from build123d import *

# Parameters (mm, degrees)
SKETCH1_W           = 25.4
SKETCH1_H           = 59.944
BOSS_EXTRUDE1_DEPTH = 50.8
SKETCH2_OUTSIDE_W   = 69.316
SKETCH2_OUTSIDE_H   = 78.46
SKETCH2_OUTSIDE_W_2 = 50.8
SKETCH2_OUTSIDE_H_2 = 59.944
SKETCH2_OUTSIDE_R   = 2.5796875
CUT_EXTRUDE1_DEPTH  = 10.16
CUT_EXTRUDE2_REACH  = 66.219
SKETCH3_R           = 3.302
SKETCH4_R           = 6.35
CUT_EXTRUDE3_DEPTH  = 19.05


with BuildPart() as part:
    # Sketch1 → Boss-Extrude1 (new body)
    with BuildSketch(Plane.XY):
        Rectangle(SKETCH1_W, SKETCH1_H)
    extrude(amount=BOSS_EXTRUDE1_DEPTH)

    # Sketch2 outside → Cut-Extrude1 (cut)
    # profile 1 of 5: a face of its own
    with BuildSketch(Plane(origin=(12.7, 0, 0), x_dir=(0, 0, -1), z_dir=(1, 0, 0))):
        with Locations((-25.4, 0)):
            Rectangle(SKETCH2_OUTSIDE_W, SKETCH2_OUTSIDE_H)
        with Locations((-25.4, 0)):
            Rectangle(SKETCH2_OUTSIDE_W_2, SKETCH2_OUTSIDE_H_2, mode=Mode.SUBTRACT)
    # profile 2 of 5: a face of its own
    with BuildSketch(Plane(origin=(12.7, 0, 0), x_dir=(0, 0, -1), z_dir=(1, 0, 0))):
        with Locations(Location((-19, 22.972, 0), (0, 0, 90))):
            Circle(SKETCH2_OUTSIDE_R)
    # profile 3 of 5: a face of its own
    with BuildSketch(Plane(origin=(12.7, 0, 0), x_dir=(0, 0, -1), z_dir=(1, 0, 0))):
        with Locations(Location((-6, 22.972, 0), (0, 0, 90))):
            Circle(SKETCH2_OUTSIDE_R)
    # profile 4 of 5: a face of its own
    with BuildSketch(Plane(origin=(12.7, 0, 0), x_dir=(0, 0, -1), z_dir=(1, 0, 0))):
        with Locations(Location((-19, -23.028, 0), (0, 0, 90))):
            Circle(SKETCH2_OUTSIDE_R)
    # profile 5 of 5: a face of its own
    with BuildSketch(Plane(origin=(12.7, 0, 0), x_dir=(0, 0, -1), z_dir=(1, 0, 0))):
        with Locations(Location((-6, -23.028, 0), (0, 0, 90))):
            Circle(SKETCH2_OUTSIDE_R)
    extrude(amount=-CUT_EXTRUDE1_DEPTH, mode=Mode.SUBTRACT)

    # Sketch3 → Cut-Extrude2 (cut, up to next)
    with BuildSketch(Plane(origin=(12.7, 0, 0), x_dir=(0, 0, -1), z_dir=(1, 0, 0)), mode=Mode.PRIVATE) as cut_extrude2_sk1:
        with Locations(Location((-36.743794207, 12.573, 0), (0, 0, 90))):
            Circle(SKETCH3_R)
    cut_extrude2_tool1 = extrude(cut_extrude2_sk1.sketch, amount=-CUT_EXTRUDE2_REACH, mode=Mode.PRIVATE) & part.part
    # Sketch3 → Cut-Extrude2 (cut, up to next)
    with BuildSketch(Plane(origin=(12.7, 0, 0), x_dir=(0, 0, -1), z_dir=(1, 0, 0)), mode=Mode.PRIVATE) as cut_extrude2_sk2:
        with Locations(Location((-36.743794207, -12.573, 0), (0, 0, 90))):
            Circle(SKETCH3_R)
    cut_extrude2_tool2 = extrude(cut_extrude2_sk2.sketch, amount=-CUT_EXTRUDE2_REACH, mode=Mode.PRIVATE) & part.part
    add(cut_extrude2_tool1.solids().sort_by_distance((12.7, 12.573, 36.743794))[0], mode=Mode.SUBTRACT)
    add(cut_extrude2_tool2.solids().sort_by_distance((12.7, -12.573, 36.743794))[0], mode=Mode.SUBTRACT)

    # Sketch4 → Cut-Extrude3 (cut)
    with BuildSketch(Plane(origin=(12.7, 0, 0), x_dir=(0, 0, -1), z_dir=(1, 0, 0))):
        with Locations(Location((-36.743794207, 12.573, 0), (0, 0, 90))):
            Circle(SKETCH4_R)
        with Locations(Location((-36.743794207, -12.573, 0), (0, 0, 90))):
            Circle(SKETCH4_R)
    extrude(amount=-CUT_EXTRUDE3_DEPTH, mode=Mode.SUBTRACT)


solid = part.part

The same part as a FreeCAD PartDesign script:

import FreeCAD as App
import Part
import Sketcher

V = App.Vector
Q = App.Units.Quantity

doc = App.newDocument("Part")
body = doc.addObject("PartDesign::Body", "Body")

# Sketch on XY plane
sketch1 = doc.addObject("Sketcher::SketchObject", "Sketch")
body.addObject(sketch1)
sketch1.AttachmentSupport = (doc.XY_Plane, [""])
sketch1.MapMode = "FlatFace"
sketch1.addGeometry(Part.LineSegment(V(-13, 30, 0), V(-13, -30, 0)), False)
sketch1.addGeometry(Part.LineSegment(V(-13, -30, 0), V(13, -30, 0)), False)
sketch1.addGeometry(Part.LineSegment(V(13, -30, 0), V(13, 30, 0)), False)
sketch1.addGeometry(Part.LineSegment(V(13, 30, 0), V(-13, 30, 0)), False)
sketch1.addConstraint(Sketcher.Constraint("Coincident", 0, 2, 1, 1))
sketch1.addConstraint(Sketcher.Constraint("Coincident", 1, 2, 2, 1))
sketch1.addConstraint(Sketcher.Constraint("Coincident", 2, 2, 3, 1))
sketch1.addConstraint(Sketcher.Constraint("Coincident", 3, 2, 0, 1))
sketch1.addConstraint(Sketcher.Constraint("Vertical", 0))
sketch1.addConstraint(Sketcher.Constraint("Horizontal", 1))
sketch1.addConstraint(Sketcher.Constraint("Vertical", 2))
sketch1.addConstraint(Sketcher.Constraint("Horizontal", 3))
sketch1.addConstraint(Sketcher.Constraint("Symmetric", 0, 2, 2, 2, -1, 1))
sketch1.addConstraint(Sketcher.Constraint("DistanceX", 1, 1, 1, 2, Q("1 in")))
sketch1.addConstraint(Sketcher.Constraint("DistanceY", 0, 2, 0, 1, Q("2.36 in")))
pad1 = doc.addObject("PartDesign::Pad", "Pad")
body.addObject(pad1)
pad1.Profile = sketch1
pad1.Length = Q("2 in")

# Sketch on YZ plane
sketch2 = doc.addObject("Sketcher::SketchObject", "Sketch001")
body.addObject(sketch2)
sketch2.AttachmentSupport = (doc.YZ_Plane, [""])
sketch2.MapMode = "FlatFace"
sketch2.AttachmentOffset = App.Placement(V(0, 0, 0.5 * 25.4), App.Rotation())
sketch2.addGeometry(Part.LineSegment(V(39.2, 60.1, 0), V(-39.2, 60.1, 0)), False)
sketch2.addGeometry(Part.LineSegment(V(-39.2, 60.1, 0), V(-39.2, -9.3, 0)), False)
sketch2.addGeometry(Part.LineSegment(V(-39.2, -9.3, 0), V(39.2, -9.3, 0)), False)
sketch2.addGeometry(Part.LineSegment(V(39.2, -9.3, 0), V(39.2, 60.1, 0)), False)
sketch2.addGeometry(Part.LineSegment(V(-30, 0, 0), V(-30, 50.8, 0)), False)
sketch2.addGeometry(Part.LineSegment(V(-30, 50.8, 0), V(30, 50.8, 0)), False)
sketch2.addGeometry(Part.LineSegment(V(30, 50.8, 0), V(30, 0, 0)), False)
sketch2.addGeometry(Part.LineSegment(V(30, 0, 0), V(-30, 0, 0)), False)
sketch2.addGeometry(Part.Circle(V(23, 19, 0), V(0, 0, 1), 2.6), False)
sketch2.addGeometry(Part.Circle(V(23, 6, 0), V(0, 0, 1), 2.6), False)
sketch2.addGeometry(Part.Circle(V(-23, 19, 0), V(0, 0, 1), 2.6), False)
sketch2.addGeometry(Part.Circle(V(-23, 6, 0), V(0, 0, 1), 2.6), False)
sketch2.addConstraint(Sketcher.Constraint("Coincident", 0, 2, 1, 1))
sketch2.addConstraint(Sketcher.Constraint("Coincident", 1, 2, 2, 1))
sketch2.addConstraint(Sketcher.Constraint("Coincident", 2, 2, 3, 1))
sketch2.addConstraint(Sketcher.Constraint("Coincident", 3, 2, 0, 1))
sketch2.addConstraint(Sketcher.Constraint("Coincident", 4, 2, 5, 1))
sketch2.addConstraint(Sketcher.Constraint("Coincident", 5, 2, 6, 1))
sketch2.addConstraint(Sketcher.Constraint("Coincident", 6, 2, 7, 1))
sketch2.addConstraint(Sketcher.Constraint("Coincident", 7, 2, 4, 1))
sketch2.addConstraint(Sketcher.Constraint("Horizontal", 0))
sketch2.addConstraint(Sketcher.Constraint("Vertical", 1))
sketch2.addConstraint(Sketcher.Constraint("Horizontal", 2))
sketch2.addConstraint(Sketcher.Constraint("Vertical", 3))
sketch2.addConstraint(Sketcher.Constraint("Vertical", 4))
sketch2.addConstraint(Sketcher.Constraint("Horizontal", 5))
sketch2.addConstraint(Sketcher.Constraint("Vertical", 6))
sketch2.addConstraint(Sketcher.Constraint("Horizontal", 7))
sketch2.addConstraint(Sketcher.Constraint("Equal", 8, 9))
sketch2.addConstraint(Sketcher.Constraint("Equal", 9, 10))
sketch2.addConstraint(Sketcher.Constraint("Equal", 10, 11))
sketch2.addConstraint(Sketcher.Constraint("Symmetric", 6, 2, 7, 2, -1, 1))
sketch2.addConstraint(Sketcher.Constraint("Horizontal", 8, 3, 10, 3))
sketch2.addConstraint(Sketcher.Constraint("Horizontal", 9, 3, 11, 3))
sketch2.addConstraint(Sketcher.Constraint("Vertical", 8, 3, 9, 3))
sketch2.addConstraint(Sketcher.Constraint("Vertical", 10, 3, 11, 3))
sketch2.addConstraint(Sketcher.Constraint("DistanceY", 4, 1, 4, 2, Q("2 in")))
sketch2.addConstraint(Sketcher.Constraint("Diameter", 8, Q("0.203125 in")))
sketch2.addConstraint(Sketcher.Constraint("DistanceX", 5, 1, 5, 2, Q("2.36 in")))
sketch2.addConstraint(Sketcher.Constraint("DistanceX", 0, 2, 0, 1, 78.46))
sketch2.addConstraint(Sketcher.Constraint("DistanceY", 1, 2, 1, 1, 69.316))
sketch2.addConstraint(Sketcher.Constraint("DistanceX", -1, 1, 8, 3, 22.972))
sketch2.addConstraint(Sketcher.Constraint("DistanceY", -1, 1, 8, 3, 19.0))
sketch2.addConstraint(Sketcher.Constraint("DistanceY", -1, 1, 9, 3, 6.0))
sketch2.addConstraint(Sketcher.Constraint("DistanceX", 10, 3, -1, 1, 23.028))
sketch2.addConstraint(Sketcher.Constraint("DistanceX", 0, 2, -1, 1, 39.23))
sketch2.addConstraint(Sketcher.Constraint("DistanceY", -1, 1, 0, 2, 60.058))
pocket1 = doc.addObject("PartDesign::Pocket", "Pocket")
body.addObject(pocket1)
pocket1.Profile = sketch2
pocket1.Length = Q("0.4 in")

# Sketch on YZ plane
sketch3 = doc.addObject("Sketcher::SketchObject", "Sketch002")
body.addObject(sketch3)
sketch3.AttachmentSupport = (doc.YZ_Plane, [""])
sketch3.MapMode = "FlatFace"
sketch3.AttachmentOffset = App.Placement(V(0, 0, 0.5 * 25.4), App.Rotation())
sketch3.addGeometry(Part.Circle(V(12.6, 36.7, 0), V(0, 0, 1), 3.3), False)
sketch3.addConstraint(Sketcher.Constraint("Diameter", 0, Q("0.26 in")))
sketch3.addConstraint(Sketcher.Constraint("DistanceX", -1, 1, 0, 3, Q("0.495 in")))
sketch3.addConstraint(Sketcher.Constraint("DistanceY", -1, 1, 0, 3, 36.743794))
pocket2 = doc.addObject("PartDesign::Pocket", "Pocket001")
body.addObject(pocket2)
pocket2.Profile = sketch3
pocket2.Type = "UpToFirst"

# Sketch on YZ plane
sketch4 = doc.addObject("Sketcher::SketchObject", "Sketch003")
body.addObject(sketch4)
sketch4.AttachmentSupport = (doc.YZ_Plane, [""])
sketch4.MapMode = "FlatFace"
sketch4.AttachmentOffset = App.Placement(V(0, 0, 0.5 * 25.4), App.Rotation())
sketch4.addGeometry(Part.Circle(V(-12.6, 36.7, 0), V(0, 0, 1), 3.3), False)
sketch4.addConstraint(Sketcher.Constraint("Diameter", 0, Q("0.26 in")))
sketch4.addConstraint(Sketcher.Constraint("DistanceX", 0, 3, -1, 1, Q("0.495 in")))
sketch4.addConstraint(Sketcher.Constraint("DistanceY", -1, 1, 0, 3, 36.743794))
pocket3 = doc.addObject("PartDesign::Pocket", "Pocket002")
body.addObject(pocket3)
pocket3.Profile = sketch4
pocket3.Type = "UpToFirst"

# Sketch on YZ plane
sketch5 = doc.addObject("Sketcher::SketchObject", "Sketch004")
body.addObject(sketch5)
sketch5.AttachmentSupport = (doc.YZ_Plane, [""])
sketch5.MapMode = "FlatFace"
sketch5.AttachmentOffset = App.Placement(V(0, 0, 0.5 * 25.4), App.Rotation())
sketch5.addGeometry(Part.Circle(V(13, 37, 0), V(0, 0, 1), 6), False)
sketch5.addGeometry(Part.Circle(V(-13, 37, 0), V(0, 0, 1), 6), False)
sketch5.addConstraint(Sketcher.Constraint("Equal", 0, 1))
sketch5.addConstraint(Sketcher.Constraint("Symmetric", 0, 3, 1, 3, -2))
sketch5.addConstraint(Sketcher.Constraint("Diameter", 0, Q("0.5 in")))
sketch5.addConstraint(Sketcher.Constraint("DistanceX", 1, 3, 0, 3, Q("0.99 in")))
sketch5.addConstraint(Sketcher.Constraint("DistanceY", -1, 1, 0, 3, 36.743794))
pocket4 = doc.addObject("PartDesign::Pocket", "Pocket003")
body.addObject(pocket4)
pocket4.Profile = sketch5
pocket4.Length = Q("0.75 in")

doc.recompute()
